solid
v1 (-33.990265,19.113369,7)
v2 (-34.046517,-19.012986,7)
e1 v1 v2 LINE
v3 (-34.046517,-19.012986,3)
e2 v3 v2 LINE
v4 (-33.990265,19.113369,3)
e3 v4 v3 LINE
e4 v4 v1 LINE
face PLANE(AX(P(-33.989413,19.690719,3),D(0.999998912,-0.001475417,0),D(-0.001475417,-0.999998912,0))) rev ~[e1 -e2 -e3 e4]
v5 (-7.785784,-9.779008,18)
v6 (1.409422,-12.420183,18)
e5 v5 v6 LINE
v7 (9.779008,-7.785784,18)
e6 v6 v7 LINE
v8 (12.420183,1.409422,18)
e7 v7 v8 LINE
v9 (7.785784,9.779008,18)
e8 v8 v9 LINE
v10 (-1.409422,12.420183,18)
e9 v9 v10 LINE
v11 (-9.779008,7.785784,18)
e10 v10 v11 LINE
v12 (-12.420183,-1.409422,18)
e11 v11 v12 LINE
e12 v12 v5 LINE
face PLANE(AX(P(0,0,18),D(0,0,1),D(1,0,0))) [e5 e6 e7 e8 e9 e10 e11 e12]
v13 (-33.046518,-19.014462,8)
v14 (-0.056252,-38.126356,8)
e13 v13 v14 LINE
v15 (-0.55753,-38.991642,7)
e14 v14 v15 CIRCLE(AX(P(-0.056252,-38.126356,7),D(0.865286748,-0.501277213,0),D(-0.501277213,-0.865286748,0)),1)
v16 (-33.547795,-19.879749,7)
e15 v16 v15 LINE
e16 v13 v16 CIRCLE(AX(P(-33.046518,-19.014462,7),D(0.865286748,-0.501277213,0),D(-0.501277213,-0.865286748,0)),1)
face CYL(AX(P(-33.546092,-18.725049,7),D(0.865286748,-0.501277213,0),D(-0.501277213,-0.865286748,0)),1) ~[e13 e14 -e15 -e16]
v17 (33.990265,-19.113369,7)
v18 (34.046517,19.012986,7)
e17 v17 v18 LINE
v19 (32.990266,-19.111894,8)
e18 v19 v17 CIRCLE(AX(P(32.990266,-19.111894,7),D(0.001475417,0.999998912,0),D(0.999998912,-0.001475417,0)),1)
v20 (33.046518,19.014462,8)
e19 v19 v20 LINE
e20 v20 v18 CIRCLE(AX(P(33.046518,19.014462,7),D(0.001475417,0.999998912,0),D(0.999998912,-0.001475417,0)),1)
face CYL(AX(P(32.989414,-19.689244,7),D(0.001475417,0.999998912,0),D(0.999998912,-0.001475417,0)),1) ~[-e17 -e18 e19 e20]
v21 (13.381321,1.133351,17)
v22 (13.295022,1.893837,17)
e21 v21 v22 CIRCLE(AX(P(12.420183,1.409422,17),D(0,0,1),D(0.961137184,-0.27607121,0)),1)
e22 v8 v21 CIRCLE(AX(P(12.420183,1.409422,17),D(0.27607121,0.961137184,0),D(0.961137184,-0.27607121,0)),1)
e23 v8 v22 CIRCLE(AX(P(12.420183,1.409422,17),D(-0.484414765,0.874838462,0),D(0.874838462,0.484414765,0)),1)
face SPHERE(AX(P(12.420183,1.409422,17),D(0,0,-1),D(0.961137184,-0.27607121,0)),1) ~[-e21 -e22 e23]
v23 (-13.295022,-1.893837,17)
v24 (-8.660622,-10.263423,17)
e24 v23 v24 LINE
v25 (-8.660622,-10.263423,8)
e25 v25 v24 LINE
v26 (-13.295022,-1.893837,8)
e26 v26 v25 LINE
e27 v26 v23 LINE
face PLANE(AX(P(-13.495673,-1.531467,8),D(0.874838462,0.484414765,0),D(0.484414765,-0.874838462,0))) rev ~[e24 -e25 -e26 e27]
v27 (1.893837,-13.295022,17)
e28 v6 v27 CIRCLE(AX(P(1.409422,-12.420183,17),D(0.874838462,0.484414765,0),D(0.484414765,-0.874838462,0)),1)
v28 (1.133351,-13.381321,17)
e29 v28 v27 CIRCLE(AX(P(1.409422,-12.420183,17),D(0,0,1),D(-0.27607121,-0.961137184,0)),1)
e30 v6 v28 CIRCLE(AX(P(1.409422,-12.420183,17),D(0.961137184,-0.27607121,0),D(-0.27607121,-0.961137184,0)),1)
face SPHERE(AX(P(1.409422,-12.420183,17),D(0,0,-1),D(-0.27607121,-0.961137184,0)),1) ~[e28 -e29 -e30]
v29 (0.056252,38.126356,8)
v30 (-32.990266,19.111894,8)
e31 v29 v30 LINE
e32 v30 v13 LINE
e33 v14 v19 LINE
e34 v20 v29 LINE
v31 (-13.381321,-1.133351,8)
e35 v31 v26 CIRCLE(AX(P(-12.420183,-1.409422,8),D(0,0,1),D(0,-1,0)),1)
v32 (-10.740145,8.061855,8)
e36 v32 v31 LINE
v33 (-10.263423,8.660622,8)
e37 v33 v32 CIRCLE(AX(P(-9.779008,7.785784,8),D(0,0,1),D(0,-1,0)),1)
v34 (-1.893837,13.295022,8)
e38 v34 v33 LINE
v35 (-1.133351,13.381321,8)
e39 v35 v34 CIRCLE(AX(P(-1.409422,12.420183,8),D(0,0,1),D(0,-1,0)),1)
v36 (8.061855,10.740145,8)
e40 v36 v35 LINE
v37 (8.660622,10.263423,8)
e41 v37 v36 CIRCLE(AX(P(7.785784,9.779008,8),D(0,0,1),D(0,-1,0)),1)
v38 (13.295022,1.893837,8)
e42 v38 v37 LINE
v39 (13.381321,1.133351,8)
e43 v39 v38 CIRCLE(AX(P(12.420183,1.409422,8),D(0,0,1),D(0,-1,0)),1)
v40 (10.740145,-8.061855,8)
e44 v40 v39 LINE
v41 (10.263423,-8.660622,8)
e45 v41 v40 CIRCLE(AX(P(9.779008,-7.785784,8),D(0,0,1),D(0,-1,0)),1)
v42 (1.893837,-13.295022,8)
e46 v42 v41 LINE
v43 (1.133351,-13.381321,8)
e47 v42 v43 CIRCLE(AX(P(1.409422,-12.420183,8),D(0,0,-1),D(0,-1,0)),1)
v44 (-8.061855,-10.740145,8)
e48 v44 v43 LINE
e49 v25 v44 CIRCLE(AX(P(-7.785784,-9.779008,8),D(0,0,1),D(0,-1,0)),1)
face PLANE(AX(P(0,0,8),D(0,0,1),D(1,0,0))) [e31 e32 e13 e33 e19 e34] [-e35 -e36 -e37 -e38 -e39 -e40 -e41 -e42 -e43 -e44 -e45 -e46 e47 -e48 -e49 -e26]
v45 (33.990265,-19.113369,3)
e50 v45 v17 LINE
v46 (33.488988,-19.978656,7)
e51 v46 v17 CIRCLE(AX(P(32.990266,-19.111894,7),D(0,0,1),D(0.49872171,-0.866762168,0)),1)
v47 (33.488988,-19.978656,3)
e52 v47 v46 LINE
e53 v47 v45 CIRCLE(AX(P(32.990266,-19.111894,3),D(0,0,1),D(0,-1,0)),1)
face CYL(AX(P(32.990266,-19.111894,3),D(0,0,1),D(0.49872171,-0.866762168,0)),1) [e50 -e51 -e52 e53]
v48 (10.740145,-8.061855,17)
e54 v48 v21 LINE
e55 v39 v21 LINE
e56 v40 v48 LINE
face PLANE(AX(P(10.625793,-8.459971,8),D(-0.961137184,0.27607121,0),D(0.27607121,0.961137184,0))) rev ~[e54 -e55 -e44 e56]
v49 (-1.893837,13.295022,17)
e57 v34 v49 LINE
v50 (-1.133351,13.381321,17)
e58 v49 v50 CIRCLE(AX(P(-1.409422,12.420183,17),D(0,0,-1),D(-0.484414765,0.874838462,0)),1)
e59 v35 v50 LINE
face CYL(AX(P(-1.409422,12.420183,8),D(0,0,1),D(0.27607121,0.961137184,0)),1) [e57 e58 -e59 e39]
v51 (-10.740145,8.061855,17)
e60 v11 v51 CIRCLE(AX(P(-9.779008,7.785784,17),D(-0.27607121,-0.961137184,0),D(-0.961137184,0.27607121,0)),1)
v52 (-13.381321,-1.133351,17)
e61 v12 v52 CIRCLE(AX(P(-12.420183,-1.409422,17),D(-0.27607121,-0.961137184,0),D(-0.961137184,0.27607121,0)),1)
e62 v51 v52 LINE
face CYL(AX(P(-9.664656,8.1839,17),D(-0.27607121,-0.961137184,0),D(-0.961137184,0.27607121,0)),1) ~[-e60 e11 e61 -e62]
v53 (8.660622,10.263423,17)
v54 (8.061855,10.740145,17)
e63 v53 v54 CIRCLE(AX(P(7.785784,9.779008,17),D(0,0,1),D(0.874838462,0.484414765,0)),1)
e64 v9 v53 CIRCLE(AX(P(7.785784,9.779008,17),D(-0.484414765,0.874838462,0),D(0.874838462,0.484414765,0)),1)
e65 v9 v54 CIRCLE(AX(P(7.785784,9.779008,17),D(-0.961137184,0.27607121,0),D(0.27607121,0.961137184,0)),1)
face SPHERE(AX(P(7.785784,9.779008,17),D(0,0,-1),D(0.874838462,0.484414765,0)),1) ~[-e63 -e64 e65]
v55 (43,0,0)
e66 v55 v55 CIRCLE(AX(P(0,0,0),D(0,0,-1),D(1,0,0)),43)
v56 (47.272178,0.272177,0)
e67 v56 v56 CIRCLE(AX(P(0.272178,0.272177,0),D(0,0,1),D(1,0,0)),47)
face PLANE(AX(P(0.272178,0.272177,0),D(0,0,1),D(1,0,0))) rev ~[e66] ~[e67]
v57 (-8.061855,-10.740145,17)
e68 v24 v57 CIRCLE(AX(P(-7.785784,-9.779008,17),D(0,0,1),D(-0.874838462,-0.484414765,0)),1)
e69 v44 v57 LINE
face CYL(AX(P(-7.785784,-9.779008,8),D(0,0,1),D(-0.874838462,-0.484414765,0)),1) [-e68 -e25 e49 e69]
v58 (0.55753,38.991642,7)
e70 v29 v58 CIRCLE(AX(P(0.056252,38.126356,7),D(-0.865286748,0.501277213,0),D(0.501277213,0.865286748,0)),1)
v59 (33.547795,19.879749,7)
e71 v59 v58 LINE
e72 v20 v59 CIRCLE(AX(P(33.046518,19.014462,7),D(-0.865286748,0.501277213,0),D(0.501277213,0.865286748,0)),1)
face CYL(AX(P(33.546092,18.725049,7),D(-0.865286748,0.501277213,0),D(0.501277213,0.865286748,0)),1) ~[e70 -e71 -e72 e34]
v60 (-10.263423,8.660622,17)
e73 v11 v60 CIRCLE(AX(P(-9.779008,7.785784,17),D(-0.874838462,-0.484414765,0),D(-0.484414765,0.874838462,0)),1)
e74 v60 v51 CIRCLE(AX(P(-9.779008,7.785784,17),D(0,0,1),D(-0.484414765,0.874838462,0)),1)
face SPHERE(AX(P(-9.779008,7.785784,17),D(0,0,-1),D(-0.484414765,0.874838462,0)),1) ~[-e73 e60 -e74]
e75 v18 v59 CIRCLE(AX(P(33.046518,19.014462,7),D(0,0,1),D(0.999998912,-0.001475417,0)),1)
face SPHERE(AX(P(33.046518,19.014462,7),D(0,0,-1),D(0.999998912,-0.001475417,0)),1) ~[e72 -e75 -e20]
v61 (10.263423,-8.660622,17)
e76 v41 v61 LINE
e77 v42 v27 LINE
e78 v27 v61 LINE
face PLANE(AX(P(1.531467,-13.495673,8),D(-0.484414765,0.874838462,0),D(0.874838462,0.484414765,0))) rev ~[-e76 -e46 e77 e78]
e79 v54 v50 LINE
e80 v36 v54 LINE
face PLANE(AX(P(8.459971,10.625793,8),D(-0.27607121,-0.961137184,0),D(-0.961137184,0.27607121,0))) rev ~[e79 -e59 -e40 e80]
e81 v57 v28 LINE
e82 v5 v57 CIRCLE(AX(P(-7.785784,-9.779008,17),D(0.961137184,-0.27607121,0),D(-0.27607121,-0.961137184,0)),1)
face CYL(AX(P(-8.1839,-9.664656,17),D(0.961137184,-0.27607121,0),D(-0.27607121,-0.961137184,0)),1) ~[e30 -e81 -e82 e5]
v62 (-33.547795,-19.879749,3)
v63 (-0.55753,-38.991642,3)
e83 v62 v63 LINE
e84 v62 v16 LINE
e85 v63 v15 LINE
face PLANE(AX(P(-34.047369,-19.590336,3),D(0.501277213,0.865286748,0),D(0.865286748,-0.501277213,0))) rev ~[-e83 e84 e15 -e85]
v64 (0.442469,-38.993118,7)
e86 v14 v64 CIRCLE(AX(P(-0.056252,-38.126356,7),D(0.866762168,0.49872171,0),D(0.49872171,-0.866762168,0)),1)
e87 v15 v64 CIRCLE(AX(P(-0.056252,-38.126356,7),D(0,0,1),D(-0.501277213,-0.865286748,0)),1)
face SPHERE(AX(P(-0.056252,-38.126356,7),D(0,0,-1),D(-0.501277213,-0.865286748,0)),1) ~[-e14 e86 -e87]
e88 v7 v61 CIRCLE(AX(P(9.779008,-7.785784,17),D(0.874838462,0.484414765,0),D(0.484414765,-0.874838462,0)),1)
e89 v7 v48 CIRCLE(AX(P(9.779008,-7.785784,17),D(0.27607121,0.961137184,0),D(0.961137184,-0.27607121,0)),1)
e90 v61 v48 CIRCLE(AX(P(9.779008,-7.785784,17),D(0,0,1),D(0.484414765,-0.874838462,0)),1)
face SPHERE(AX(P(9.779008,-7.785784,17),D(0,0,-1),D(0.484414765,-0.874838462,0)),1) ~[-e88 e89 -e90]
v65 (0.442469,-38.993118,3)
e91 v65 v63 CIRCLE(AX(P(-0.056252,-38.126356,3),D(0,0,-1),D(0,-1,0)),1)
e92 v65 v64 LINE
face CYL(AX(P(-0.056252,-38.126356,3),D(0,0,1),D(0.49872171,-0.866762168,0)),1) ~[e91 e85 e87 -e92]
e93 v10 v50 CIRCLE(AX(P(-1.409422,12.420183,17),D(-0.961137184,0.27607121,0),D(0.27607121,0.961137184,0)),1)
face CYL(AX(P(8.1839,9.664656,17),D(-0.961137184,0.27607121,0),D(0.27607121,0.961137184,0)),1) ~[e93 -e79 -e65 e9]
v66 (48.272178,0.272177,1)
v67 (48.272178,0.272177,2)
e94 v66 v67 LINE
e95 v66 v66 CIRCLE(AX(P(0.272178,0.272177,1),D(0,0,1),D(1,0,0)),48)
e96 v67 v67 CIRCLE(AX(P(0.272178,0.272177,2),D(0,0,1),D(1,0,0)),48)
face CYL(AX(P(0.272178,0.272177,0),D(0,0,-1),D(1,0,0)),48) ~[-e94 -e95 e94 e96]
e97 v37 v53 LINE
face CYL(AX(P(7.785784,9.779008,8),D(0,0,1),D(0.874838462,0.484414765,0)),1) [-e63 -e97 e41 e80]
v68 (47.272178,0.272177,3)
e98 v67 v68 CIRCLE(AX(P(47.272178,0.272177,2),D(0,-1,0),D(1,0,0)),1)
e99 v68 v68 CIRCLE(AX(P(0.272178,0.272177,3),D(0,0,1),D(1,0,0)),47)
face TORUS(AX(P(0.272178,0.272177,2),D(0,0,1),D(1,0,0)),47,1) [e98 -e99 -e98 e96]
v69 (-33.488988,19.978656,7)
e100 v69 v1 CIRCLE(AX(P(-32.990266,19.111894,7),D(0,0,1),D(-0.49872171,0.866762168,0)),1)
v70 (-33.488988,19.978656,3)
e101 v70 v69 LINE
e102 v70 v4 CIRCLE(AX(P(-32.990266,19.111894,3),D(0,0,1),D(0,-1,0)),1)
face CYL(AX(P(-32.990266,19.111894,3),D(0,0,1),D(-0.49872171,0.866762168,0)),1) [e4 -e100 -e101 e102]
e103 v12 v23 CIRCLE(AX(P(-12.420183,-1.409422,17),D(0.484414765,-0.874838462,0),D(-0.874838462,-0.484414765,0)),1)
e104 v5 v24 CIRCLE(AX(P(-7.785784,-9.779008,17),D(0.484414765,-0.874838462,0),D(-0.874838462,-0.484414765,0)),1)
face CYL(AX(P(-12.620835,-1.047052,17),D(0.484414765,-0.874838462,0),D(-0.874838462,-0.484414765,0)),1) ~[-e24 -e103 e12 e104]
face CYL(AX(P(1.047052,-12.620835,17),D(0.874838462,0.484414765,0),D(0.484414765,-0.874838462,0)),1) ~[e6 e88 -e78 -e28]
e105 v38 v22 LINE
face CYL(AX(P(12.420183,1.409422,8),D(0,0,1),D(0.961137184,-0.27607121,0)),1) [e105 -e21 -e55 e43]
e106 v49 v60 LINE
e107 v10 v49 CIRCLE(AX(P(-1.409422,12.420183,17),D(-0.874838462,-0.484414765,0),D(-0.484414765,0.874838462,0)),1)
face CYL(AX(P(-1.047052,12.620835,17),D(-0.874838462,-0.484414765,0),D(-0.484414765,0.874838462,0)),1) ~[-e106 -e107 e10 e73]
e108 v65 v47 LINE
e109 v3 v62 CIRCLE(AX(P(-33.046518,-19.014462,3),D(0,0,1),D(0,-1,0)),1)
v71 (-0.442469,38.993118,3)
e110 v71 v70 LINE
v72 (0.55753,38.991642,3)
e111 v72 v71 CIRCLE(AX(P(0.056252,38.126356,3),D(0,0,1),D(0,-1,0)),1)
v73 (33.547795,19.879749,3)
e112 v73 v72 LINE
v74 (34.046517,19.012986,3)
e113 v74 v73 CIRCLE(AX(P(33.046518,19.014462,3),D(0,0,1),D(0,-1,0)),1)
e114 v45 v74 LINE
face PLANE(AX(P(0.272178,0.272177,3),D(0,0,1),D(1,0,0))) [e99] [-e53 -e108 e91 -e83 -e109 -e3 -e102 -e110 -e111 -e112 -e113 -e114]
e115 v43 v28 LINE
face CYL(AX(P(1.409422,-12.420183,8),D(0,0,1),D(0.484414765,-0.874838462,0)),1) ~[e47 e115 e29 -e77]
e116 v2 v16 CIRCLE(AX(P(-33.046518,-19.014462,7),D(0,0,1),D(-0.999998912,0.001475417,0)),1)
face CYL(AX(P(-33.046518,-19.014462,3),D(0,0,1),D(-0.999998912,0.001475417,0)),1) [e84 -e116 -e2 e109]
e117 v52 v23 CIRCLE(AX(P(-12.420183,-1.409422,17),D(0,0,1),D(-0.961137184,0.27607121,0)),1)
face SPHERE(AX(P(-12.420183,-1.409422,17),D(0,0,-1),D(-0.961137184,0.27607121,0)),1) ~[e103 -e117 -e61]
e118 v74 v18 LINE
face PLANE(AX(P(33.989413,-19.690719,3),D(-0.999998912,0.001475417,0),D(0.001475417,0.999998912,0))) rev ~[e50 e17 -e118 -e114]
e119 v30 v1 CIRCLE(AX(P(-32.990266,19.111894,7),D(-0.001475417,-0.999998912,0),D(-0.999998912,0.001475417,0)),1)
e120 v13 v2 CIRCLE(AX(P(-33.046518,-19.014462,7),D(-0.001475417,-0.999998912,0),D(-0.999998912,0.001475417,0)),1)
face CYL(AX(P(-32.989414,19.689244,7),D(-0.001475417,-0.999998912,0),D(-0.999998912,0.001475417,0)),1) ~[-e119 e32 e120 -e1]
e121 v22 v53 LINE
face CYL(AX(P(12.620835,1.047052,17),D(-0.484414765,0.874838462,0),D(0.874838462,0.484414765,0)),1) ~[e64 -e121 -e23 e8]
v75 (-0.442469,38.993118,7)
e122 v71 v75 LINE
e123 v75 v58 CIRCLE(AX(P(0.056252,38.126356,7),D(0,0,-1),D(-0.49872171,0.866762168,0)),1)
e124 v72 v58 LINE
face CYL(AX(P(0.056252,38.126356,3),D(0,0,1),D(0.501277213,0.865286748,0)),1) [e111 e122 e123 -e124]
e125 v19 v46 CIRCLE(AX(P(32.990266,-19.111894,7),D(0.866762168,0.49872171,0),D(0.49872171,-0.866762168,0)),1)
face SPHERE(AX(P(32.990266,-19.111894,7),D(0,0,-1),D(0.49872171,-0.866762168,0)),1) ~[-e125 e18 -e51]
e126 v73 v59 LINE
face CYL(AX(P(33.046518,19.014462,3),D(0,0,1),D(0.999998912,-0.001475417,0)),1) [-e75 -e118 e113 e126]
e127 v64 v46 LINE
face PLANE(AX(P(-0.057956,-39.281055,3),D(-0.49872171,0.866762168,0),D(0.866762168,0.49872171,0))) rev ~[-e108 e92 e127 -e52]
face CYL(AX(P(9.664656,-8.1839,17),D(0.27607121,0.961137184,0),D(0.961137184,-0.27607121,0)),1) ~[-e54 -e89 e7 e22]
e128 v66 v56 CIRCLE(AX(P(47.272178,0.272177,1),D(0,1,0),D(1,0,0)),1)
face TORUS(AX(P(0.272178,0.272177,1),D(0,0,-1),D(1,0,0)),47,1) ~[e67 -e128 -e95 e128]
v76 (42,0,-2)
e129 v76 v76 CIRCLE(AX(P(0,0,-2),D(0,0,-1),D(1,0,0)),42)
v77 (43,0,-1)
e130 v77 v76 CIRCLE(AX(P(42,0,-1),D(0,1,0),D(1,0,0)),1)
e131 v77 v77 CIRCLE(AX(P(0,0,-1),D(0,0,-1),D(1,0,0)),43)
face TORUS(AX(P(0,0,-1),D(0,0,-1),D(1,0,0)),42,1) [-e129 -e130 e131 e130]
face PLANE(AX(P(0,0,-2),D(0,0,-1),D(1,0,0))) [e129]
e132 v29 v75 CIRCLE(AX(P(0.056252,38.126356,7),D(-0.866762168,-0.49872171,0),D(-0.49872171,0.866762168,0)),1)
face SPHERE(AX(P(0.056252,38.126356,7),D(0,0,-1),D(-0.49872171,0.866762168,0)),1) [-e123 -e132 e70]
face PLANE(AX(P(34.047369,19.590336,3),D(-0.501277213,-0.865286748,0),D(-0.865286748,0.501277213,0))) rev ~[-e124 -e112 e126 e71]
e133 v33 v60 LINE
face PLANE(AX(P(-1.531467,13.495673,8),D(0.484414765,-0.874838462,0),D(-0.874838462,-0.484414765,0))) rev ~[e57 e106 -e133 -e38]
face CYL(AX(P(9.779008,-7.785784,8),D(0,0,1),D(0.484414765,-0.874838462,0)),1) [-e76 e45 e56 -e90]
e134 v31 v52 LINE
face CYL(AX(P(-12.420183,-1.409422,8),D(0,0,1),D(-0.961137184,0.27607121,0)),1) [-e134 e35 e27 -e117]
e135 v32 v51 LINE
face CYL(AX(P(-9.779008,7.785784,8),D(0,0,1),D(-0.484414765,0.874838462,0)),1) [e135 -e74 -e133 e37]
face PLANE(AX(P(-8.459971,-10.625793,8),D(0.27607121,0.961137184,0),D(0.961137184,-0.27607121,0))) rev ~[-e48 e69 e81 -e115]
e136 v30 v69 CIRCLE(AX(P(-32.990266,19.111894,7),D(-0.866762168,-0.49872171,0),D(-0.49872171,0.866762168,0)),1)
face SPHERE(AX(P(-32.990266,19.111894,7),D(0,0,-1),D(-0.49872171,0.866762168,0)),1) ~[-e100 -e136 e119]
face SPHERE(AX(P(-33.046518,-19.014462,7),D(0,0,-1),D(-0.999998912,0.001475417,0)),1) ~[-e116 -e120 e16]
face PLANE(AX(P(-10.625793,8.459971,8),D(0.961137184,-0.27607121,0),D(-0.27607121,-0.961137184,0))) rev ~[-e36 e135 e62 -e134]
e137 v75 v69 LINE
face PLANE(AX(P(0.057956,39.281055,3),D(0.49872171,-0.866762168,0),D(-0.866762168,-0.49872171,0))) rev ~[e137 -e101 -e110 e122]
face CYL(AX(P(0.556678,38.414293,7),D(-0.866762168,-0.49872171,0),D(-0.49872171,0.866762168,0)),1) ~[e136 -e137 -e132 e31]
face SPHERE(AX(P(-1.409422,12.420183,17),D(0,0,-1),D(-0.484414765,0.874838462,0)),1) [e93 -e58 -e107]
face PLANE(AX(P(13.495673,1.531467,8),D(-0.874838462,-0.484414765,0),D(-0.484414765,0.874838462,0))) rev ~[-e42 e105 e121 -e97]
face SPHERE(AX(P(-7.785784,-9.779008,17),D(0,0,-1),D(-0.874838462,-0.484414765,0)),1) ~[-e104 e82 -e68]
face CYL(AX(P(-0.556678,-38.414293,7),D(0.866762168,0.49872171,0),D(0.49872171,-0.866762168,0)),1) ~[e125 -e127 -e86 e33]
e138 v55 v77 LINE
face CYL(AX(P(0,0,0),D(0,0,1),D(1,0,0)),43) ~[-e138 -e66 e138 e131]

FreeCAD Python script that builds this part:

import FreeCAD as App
import Part
import Sketcher
from FreeCAD import Vector
Q = App.Units.Quantity


def edges_at(feature, points):
    """Names of the edges that pass closest to the given points."""
    edges = feature.Shape.Edges
    near = lambda p: min(range(len(edges)), key=lambda i: edges[i].distToShape(Part.Vertex(*p))[0])
    return sorted({f"Edge{near(p) + 1}" for p in points})

doc = App.newDocument("Part")
body = doc.addObject("PartDesign::Body", "Body")

sketch1 = doc.addObject("Sketcher::SketchObject", "Sketch")
body.addObject(sketch1)
sketch1.AttachmentSupport = (doc.XY_Plane, [""])
sketch1.MapMode = "FlatFace"
sketch1.addGeometry(Part.Circle(Vector(0, 0, 0), Vector(0, 0, 1), 48), False)
sketch1.addConstraint([
    Sketcher.Constraint("Diameter", 0, Q("96 mm")),
    Sketcher.Constraint("DistanceX", -1, 1, 0, 3, Q("0.272178 mm")),
    Sketcher.Constraint("DistanceY", -1, 1, 0, 3, Q("0.272177 mm")),
])
pad1 = doc.addObject("PartDesign::Pad", "Pad")
body.addObject(pad1)
pad1.Profile = sketch1
pad1.Length = 3

sketch2 = doc.addObject("Sketcher::SketchObject", "Sketch001")
body.addObject(sketch2)
sketch2.AttachmentSupport = (doc.XY_Plane, [""])
sketch2.MapMode = "FlatFace"
sketch2.AttachmentOffset = App.Placement(Vector(0, 0, 3), App.Rotation())
sketch2.addGeometry([
    Part.LineSegment(Vector(0, -39, 0), Vector(34, -20, 0)),
    Part.LineSegment(Vector(34, -20, 0), Vector(34, 20, 0)),
    Part.LineSegment(Vector(34, 20, 0), Vector(0, 39, 0)),
    Part.LineSegment(Vector(0, 39, 0), Vector(-34, 20, 0)),
    Part.LineSegment(Vector(-34, 20, 0), Vector(-34, -20, 0)),
    Part.LineSegment(Vector(-34, -20, 0), Vector(0, -39, 0)),
], False)
sketch2.addConstraint([
    Sketcher.Constraint("Coincident", 0, 2, 1, 1),
    Sketcher.Constraint("Coincident", 1, 2, 2, 1),
    Sketcher.Constraint("Coincident", 2, 2, 3, 1),
    Sketcher.Constraint("Coincident", 3, 2, 4, 1),
    Sketcher.Constraint("Coincident", 4, 2, 5, 1),
    Sketcher.Constraint("Coincident", 5, 2, 0, 1),
    Sketcher.Constraint("Symmetric", 0, 2, 3, 2, -1, 1),
    Sketcher.Constraint("Symmetric", 1, 2, 4, 2, -1, 1),
    Sketcher.Constraint("Symmetric", 2, 2, 5, 2, -1, 1),
    Sketcher.Constraint("Equal", 0, 1),
    Sketcher.Constraint("Equal", 1, 2),
    Sketcher.Constraint("DistanceY", 0, 2, -1, 1, Q("19.690719 mm")),
    Sketcher.Constraint("DistanceX", -1, 1, 1, 2, Q("34.047369 mm")),
    Sketcher.Constraint("DistanceY", 1, 2, 2, 2, Q("19.690719 mm")),
    Sketcher.Constraint("DistanceX", 3, 2, 2, 2, Q("34.047369 mm")),
])
pad2 = doc.addObject("PartDesign::Pad", "Pad001")
body.addObject(pad2)
pad2.Profile = sketch2
pad2.Length = 5

sketch3 = doc.addObject("Sketcher::SketchObject", "Sketch002")
body.addObject(sketch3)
sketch3.AttachmentSupport = (doc.XY_Plane, [""])
sketch3.MapMode = "FlatFace"
sketch3.AttachmentOffset = App.Placement(Vector(0, 0, 8), App.Rotation())
sketch3.addGeometry([
    Part.LineSegment(Vector(2, -13, 0), Vector(11, -8, 0)),
    Part.LineSegment(Vector(11, -8, 0), Vector(13, 2, 0)),
    Part.LineSegment(Vector(13, 2, 0), Vector(8, 11, 0)),
    Part.LineSegment(Vector(8, 11, 0), Vector(-2, 13, 0)),
    Part.LineSegment(Vector(-2, 13, 0), Vector(-11, 8, 0)),
    Part.LineSegment(Vector(-11, 8, 0), Vector(-13, -2, 0)),
    Part.LineSegment(Vector(-13, -2, 0), Vector(-8, -11, 0)),
    Part.LineSegment(Vector(-8, -11, 0), Vector(2, -13, 0)),
], False)
sketch3.addConstraint([
    Sketcher.Constraint("Coincident", 0, 2, 1, 1),
    Sketcher.Constraint("Coincident", 1, 2, 2, 1),
    Sketcher.Constraint("Coincident", 2, 2, 3, 1),
    Sketcher.Constraint("Coincident", 3, 2, 4, 1),
    Sketcher.Constraint("Coincident", 4, 2, 5, 1),
    Sketcher.Constraint("Coincident", 5, 2, 6, 1),
    Sketcher.Constraint("Coincident", 6, 2, 7, 1),
    Sketcher.Constraint("Coincident", 7, 2, 0, 1),
    Sketcher.Constraint("Symmetric", 0, 2, 4, 2, -1, 1),
    Sketcher.Constraint("Symmetric", 1, 2, 5, 2, -1, 1),
    Sketcher.Constraint("Symmetric", 2, 2, 6, 2, -1, 1),
    Sketcher.Constraint("Symmetric", 3, 2, 7, 2, -1, 1),
    Sketcher.Constraint("Perpendicular", 0, 2),
    Sketcher.Constraint("Perpendicular", 1, 3),
    Sketcher.Constraint("Equal", 0, 1),
    Sketcher.Constraint("Equal", 1, 2),
    Sketcher.Constraint("Equal", 2, 3),
    Sketcher.Constraint("DistanceY", 0, 2, -1, 1, Q("8.459971 mm")),
    Sketcher.Constraint("DistanceX", 0, 2, 1, 2, Q("2.86988 mm")),
    Sketcher.Constraint("DistanceX", 3, 2, 1, 2, Q("15.02714 mm")),
])
pad3 = doc.addObject("PartDesign::Pad", "Pad002")
body.addObject(pad3)
pad3.Profile = sketch3
pad3.Length = 10

sketch4 = doc.addObject("Sketcher::SketchObject", "Sketch003")
body.addObject(sketch4)
sketch4.AttachmentSupport = (doc.XY_Plane, [""])
sketch4.MapMode = "FlatFace"
sketch4.addGeometry(Part.Circle(Vector(0, 0, 0), Vector(0, 0, 1), 43), False)
sketch4.addConstraint([
    Sketcher.Constraint("Coincident", 0, 3, -1, 1),
    Sketcher.Constraint("Diameter", 0, Q("86 mm")),
])
pad4 = doc.addObject("PartDesign::Pad", "Pad003")
body.addObject(pad4)
pad4.Profile = sketch4
pad4.Length = 2
pad4.Reversed = True
doc.recompute()

fillet = doc.addObject("PartDesign::Fillet", "Fillet")
body.addObject(fillet)
fillet.Base = (pad4, edges_at(pad4, [
    (-16.966, 29.486, 8),
    (-34.018, 0.05, 8),
    (-17.053, -29.436, 8),
    (16.966, -29.486, 8),
    (34.018, -0.05, 8),
    (17.053, 29.436, 8),
    (-6.079, 10.978, 18),
    (-12.061, 3.464, 18),
    (-10.978, -6.079, 18),
    (-3.464, -12.061, 18),
    (6.079, -10.978, 18),
    (12.061, -3.464, 18),
    (10.978, 6.079, 18),
    (3.464, 12.061, 18),
    (-8.46, -10.626, 13),
    (1.531, -13.496, 13),
    (10.626, -8.46, 13),
    (13.496, 1.531, 13),
    (8.46, 10.626, 13),
    (-1.531, 13.496, 13),
    (-10.626, 8.46, 13),
    (-13.496, -1.531, 13),
    (0.058, 39.281, 5.5),
    (34.047, 19.59, 5.5),
    (33.989, -19.691, 5.5),
    (-0.058, -39.281, 5.5),
    (-34.047, -19.59, 5.5),
    (-33.989, 19.691, 5.5),
    (-47.728, 0.272, 3),
    (-47.728, 0.272, 0),
    (-43, 0, -2),
]))
fillet.Radius = 1

doc.recompute()
